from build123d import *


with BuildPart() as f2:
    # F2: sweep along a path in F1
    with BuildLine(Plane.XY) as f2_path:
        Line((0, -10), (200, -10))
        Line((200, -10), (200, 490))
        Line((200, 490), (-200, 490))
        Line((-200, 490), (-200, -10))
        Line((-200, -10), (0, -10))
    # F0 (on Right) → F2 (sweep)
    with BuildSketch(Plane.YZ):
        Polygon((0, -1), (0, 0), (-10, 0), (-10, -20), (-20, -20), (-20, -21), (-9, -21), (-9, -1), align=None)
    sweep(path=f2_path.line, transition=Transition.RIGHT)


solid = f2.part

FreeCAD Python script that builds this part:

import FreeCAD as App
import Part
import Sketcher

doc = App.newDocument("Part")
body = doc.addObject("PartDesign::Body", "Body")

sketch1 = body.newObject("Sketcher::SketchObject", "Sketch")
sketch1.AttachmentSupport = (doc.getObject("YZ_Plane"), [""])
sketch1.MapMode = "FlatFace"
sketch1.addGeometry([
    Part.LineSegment(App.Vector(0, -1, 0), App.Vector(0, 0, 0)),
    Part.LineSegment(App.Vector(0, 0, 0), App.Vector(-10, 0, 0)),
    Part.LineSegment(App.Vector(-10, 0, 0), App.Vector(-10, -20, 0)),
    Part.LineSegment(App.Vector(-10, -20, 0), App.Vector(-20, -20, 0)),
    Part.LineSegment(App.Vector(-20, -20, 0), App.Vector(-20, -21, 0)),
    Part.LineSegment(App.Vector(-20, -21, 0), App.Vector(-9, -21, 0)),
    Part.LineSegment(App.Vector(-9, -21, 0), App.Vector(-9, -1, 0)),
    Part.LineSegment(App.Vector(-9, -1, 0), App.Vector(0, -1, 0)),
], False)
sketch1.addConstraint([
    Sketcher.Constraint("Coincident", 0, 2, 1, 1),
    Sketcher.Constraint("Coincident", 1, 2, 2, 1),
    Sketcher.Constraint("Coincident", 2, 2, 3, 1),
    Sketcher.Constraint("Coincident", 3, 2, 4, 1),
    Sketcher.Constraint("Coincident", 4, 2, 5, 1),
    Sketcher.Constraint("Coincident", 5, 2, 6, 1),
    Sketcher.Constraint("Coincident", 6, 2, 7, 1),
    Sketcher.Constraint("Coincident", 7, 2, 0, 1),
    Sketcher.Constraint("Vertical", 0),
    Sketcher.Constraint("Horizontal", 1),
    Sketcher.Constraint("Vertical", 2),
    Sketcher.Constraint("Horizontal", 3),
    Sketcher.Constraint("Vertical", 4),
    Sketcher.Constraint("Horizontal", 5),
    Sketcher.Constraint("Vertical", 6),
    Sketcher.Constraint("Horizontal", 7),
    Sketcher.Constraint("Coincident", 0, 2, -1, 1),
    Sketcher.Constraint("Equal", 1, 3),
    Sketcher.Constraint("Equal", 0, 4),
    Sketcher.Constraint("DistanceX", 1, 2, 1, 1, 10.0),
    Sketcher.Constraint("DistanceX", 5, 1, 5, 2, 11.0),
    Sketcher.Constraint("DistanceY", 0, 1, 0, 2, 1.0),
    Sketcher.Constraint("DistanceY", 2, 2, 2, 1, 20.0),
])

sketch2 = body.newObject("Sketcher::SketchObject", "Sketch001")
sketch2.AttachmentSupport = (doc.getObject("XY_Plane"), [""])
sketch2.MapMode = "FlatFace"
sketch2.addGeometry([
    Part.LineSegment(App.Vector(200, -10, 0), App.Vector(200, 490, 0)),
    Part.LineSegment(App.Vector(200, 490, 0), App.Vector(-200, 490, 0)),
    Part.LineSegment(App.Vector(-200, 490, 0), App.Vector(-200, -10, 0)),
    Part.LineSegment(App.Vector(-200, -10, 0), App.Vector(200, -10, 0)),
], False)
sketch2.addConstraint([
    Sketcher.Constraint("Coincident", 0, 2, 1, 1),
    Sketcher.Constraint("Coincident", 1, 2, 2, 1),
    Sketcher.Constraint("Coincident", 2, 2, 3, 1),
    Sketcher.Constraint("Coincident", 3, 2, 0, 1),
    Sketcher.Constraint("Vertical", 0),
    Sketcher.Constraint("Horizontal", 1),
    Sketcher.Constraint("Vertical", 2),
    Sketcher.Constraint("Horizontal", 3),
    Sketcher.Constraint("DistanceX", 1, 2, 1, 1, 400.0),
    Sketcher.Constraint("DistanceY", 0, 1, 0, 2, 500.0),
    Sketcher.Constraint("DistanceX", -1, 1, 0, 2, 200.0),
    Sketcher.Constraint("DistanceY", -1, 1, 0, 2, 490.0),
])
doc.recompute()

additivepipe = body.newObject("PartDesign::AdditivePipe", "AdditivePipe")
additivepipe.Profile = sketch1
additivepipe.Spine = (sketch2, ["Edge1", "Edge2", "Edge3", "Edge4"])
additivepipe.Transition = "Right corner"

doc.recompute()
